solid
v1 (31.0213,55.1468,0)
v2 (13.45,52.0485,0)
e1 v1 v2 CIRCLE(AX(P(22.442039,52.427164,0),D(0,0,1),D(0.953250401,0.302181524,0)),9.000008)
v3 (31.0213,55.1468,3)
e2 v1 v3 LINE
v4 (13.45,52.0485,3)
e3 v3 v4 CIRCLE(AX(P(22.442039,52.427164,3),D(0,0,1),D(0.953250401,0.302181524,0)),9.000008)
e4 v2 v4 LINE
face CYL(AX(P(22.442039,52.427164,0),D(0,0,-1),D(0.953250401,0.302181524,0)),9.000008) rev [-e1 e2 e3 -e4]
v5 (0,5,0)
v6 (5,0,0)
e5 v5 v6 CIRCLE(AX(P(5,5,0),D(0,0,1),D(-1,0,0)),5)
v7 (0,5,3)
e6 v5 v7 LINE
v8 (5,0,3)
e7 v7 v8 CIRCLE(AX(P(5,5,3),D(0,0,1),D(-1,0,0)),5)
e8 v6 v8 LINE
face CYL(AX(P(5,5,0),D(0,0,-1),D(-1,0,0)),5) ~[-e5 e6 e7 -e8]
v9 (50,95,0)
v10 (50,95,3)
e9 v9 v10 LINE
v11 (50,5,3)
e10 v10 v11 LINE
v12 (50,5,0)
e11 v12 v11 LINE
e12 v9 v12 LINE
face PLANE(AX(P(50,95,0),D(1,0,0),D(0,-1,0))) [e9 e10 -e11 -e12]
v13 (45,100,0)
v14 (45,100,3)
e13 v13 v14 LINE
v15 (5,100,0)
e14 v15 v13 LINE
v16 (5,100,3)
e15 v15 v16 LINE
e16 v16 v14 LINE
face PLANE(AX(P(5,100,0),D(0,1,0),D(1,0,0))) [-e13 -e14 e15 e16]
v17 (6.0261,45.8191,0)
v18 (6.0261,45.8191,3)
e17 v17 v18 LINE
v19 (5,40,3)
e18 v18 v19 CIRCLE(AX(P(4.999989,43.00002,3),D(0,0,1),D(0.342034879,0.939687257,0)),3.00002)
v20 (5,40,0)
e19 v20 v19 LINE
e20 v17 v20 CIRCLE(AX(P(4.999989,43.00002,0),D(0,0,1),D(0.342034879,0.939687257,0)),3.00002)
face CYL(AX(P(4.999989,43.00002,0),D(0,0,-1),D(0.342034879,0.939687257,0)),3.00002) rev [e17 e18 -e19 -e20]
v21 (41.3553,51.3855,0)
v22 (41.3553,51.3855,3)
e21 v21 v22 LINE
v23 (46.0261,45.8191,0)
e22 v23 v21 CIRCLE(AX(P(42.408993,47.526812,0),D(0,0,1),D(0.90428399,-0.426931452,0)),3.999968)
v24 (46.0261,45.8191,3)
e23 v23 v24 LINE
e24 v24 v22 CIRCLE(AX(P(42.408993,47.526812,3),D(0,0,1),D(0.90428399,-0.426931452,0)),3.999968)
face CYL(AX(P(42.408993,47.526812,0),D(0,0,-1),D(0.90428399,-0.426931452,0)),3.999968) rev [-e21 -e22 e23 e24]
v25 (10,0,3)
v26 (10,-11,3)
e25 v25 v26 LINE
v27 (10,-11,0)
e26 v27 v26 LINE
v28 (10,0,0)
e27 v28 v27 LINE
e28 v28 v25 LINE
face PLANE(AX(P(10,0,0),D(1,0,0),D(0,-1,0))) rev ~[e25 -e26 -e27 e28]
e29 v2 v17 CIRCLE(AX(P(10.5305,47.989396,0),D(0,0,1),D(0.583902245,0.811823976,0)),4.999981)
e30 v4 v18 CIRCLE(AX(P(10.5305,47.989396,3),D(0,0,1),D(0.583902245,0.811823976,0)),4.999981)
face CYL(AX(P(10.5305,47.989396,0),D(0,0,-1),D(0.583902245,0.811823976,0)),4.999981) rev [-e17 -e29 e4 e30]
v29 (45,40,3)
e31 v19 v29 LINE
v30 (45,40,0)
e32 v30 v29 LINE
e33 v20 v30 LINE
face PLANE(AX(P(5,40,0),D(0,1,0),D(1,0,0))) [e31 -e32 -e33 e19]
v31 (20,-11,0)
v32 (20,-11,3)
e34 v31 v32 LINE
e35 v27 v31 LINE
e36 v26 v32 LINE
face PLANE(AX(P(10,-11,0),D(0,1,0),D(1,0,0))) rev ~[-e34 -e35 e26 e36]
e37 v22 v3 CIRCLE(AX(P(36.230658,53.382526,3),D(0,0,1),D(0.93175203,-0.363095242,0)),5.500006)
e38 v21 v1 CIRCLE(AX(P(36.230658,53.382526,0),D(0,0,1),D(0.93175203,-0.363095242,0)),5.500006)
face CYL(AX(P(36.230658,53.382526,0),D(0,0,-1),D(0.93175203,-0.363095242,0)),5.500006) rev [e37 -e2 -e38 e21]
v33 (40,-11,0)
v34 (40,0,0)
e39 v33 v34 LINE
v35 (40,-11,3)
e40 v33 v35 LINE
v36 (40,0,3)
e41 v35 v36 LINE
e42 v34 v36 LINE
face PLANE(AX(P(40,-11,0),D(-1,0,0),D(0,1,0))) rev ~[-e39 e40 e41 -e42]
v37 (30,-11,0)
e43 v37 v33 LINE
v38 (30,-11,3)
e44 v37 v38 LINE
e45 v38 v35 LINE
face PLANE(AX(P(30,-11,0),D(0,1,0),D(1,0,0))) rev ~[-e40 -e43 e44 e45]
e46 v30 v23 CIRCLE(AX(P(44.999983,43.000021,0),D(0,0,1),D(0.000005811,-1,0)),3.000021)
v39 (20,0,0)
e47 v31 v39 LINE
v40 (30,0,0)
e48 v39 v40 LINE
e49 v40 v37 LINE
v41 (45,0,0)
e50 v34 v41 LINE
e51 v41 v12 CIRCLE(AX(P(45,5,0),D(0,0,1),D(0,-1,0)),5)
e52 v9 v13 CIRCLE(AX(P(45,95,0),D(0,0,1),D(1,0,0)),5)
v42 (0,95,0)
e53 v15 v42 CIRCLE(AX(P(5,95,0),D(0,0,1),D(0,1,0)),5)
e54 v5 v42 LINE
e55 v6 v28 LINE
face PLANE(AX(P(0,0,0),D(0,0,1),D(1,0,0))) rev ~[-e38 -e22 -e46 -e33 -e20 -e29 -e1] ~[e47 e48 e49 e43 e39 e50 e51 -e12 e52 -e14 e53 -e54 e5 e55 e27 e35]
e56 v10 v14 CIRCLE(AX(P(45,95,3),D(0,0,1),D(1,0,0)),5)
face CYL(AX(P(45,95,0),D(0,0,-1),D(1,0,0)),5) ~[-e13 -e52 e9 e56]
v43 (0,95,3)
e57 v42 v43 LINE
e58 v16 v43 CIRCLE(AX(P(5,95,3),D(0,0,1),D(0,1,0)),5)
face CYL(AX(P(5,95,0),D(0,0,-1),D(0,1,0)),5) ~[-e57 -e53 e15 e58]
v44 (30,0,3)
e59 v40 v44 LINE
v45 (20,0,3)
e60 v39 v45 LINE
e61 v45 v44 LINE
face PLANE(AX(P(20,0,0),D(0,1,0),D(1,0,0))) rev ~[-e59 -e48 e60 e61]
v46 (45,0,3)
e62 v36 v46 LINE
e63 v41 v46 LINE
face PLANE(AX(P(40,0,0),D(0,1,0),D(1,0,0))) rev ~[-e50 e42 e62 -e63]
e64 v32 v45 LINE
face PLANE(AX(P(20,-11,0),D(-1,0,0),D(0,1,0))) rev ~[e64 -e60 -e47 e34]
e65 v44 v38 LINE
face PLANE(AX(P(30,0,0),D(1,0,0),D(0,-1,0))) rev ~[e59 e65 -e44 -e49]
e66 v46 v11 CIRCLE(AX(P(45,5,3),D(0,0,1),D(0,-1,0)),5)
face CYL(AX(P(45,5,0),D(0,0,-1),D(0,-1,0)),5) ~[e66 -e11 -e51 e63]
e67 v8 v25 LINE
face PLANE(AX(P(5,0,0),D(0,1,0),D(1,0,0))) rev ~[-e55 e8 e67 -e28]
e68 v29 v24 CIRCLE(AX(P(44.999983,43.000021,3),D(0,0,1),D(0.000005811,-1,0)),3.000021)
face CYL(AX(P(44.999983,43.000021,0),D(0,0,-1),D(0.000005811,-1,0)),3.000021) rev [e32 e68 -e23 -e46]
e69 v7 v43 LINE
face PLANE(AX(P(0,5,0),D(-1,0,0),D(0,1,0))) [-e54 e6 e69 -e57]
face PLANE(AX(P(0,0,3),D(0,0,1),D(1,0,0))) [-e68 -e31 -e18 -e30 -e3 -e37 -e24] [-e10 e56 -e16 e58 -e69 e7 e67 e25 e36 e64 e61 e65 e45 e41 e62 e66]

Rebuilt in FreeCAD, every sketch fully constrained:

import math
import FreeCAD as App
import Part
import Sketcher

V = App.Vector
Q = App.Units.Quantity

doc = App.newDocument("Part")
body = doc.addObject("PartDesign::Body", "Body")

sketch1 = body.newObject("Sketcher::SketchObject", "Sketch")
sketch1.AttachmentSupport = (doc.getObject("XY_Plane"), [""])
sketch1.MapMode = "FlatFace"
sketch1.addGeometry(Part.LineSegment(V(0, 95, 0), V(0, 5, 0)), False)
sketch1.addGeometry(Part.ArcOfCircle(Part.Circle(V(5, 5, 0), V(0, 0, 1), 5), math.radians(180), math.radians(270)), False)
sketch1.addGeometry(Part.LineSegment(V(5, 0, 0), V(10, 0, 0)), False)
sketch1.addGeometry(Part.LineSegment(V(10, 0, 0), V(10, -11, 0)), False)
sketch1.addGeometry(Part.LineSegment(V(10, -11, 0), V(20, -11, 0)), False)
sketch1.addGeometry(Part.LineSegment(V(20, -11, 0), V(20, 0, 0)), False)
sketch1.addGeometry(Part.LineSegment(V(20, 0, 0), V(30, 0, 0)), False)
sketch1.addGeometry(Part.LineSegment(V(30, 0, 0), V(30, -11, 0)), False)
sketch1.addGeometry(Part.LineSegment(V(30, -11, 0), V(40, -11, 0)), False)
sketch1.addGeometry(Part.LineSegment(V(40, -11, 0), V(40, 0, 0)), False)
sketch1.addGeometry(Part.LineSegment(V(40, 0, 0), V(45, 0, 0)), False)
sketch1.addGeometry(Part.ArcOfCircle(Part.Circle(V(45, 5, 0), V(0, 0, 1), 5), math.radians(-90), math.radians(0)), False)
sketch1.addGeometry(Part.LineSegment(V(50, 5, 0), V(50, 95, 0)), False)
sketch1.addGeometry(Part.ArcOfCircle(Part.Circle(V(45, 95, 0), V(0, 0, 1), 5), math.radians(0), math.radians(90)), False)
sketch1.addGeometry(Part.LineSegment(V(45, 100, 0), V(5, 100, 0)), False)
sketch1.addGeometry(Part.ArcOfCircle(Part.Circle(V(5, 95, 0), V(0, 0, 1), 5), math.radians(90), math.radians(180)), False)
sketch1.addGeometry(Part.LineSegment(V(45, 40, 0), V(5, 40, 0)), False)
sketch1.addGeometry(Part.ArcOfCircle(Part.Circle(V(5, 43, 0), V(0, 0, 1), 3), math.radians(70), math.radians(270)), False)
sketch1.addGeometry(Part.ArcOfCircle(Part.Circle(V(10.5, 48, 0), V(0, 0, 1), 5), math.radians(54), math.radians(206)), False)
sketch1.addGeometry(Part.ArcOfCircle(Part.Circle(V(22.4, 52.4, 0), V(0, 0, 1), 9), math.radians(18), math.radians(182)), False)
sketch1.addGeometry(Part.ArcOfCircle(Part.Circle(V(36.2, 53.4, 0), V(0, 0, 1), 5.5), math.radians(-21), math.radians(161)), False)
sketch1.addGeometry(Part.ArcOfCircle(Part.Circle(V(42.4, 47.5, 0), V(0, 0, 1), 4), math.radians(-25), math.radians(105)), False)
sketch1.addGeometry(Part.ArcOfCircle(Part.Circle(V(45, 43, 0), V(0, 0, 1), 3), math.radians(-90), math.radians(70)), False)
sketch1.addConstraint(Sketcher.Constraint("Tangent", 0, 2, 1, 1))
sketch1.addConstraint(Sketcher.Constraint("Tangent", 1, 2, 2, 1))
sketch1.addConstraint(Sketcher.Constraint("Coincident", 2, 2, 3, 1))
sketch1.addConstraint(Sketcher.Constraint("Coincident", 3, 2, 4, 1))
sketch1.addConstraint(Sketcher.Constraint("Coincident", 4, 2, 5, 1))
sketch1.addConstraint(Sketcher.Constraint("Coincident", 5, 2, 6, 1))
sketch1.addConstraint(Sketcher.Constraint("Coincident", 6, 2, 7, 1))
sketch1.addConstraint(Sketcher.Constraint("Coincident", 7, 2, 8, 1))
sketch1.addConstraint(Sketcher.Constraint("Coincident", 8, 2, 9, 1))
sketch1.addConstraint(Sketcher.Constraint("Coincident", 9, 2, 10, 1))
sketch1.addConstraint(Sketcher.Constraint("Tangent", 10, 2, 11, 1))
sketch1.addConstraint(Sketcher.Constraint("Tangent", 11, 2, 12, 1))
sketch1.addConstraint(Sketcher.Constraint("Tangent", 12, 2, 13, 1))
sketch1.addConstraint(Sketcher.Constraint("Tangent", 13, 2, 14, 1))
sketch1.addConstraint(Sketcher.Constraint("Tangent", 14, 2, 15, 1))
sketch1.addConstraint(Sketcher.Constraint("Tangent", 15, 2, 0, 1))
sketch1.addConstraint(Sketcher.Constraint("Tangent", 16, 2, 17, 2))
sketch1.addConstraint(Sketcher.Constraint("Coincident", 17, 1, 18, 2))
sketch1.addConstraint(Sketcher.Constraint("Coincident", 18, 1, 19, 2))
sketch1.addConstraint(Sketcher.Constraint("Coincident", 19, 1, 20, 2))
sketch1.addConstraint(Sketcher.Constraint("Coincident", 20, 1, 21, 2))
sketch1.addConstraint(Sketcher.Constraint("Coincident", 21, 1, 22, 2))
sketch1.addConstraint(Sketcher.Constraint("Tangent", 22, 1, 16, 1))
sketch1.addConstraint(Sketcher.Constraint("Vertical", 0))
sketch1.addConstraint(Sketcher.Constraint("Horizontal", 2))
sketch1.addConstraint(Sketcher.Constraint("Vertical", 3))
sketch1.addConstraint(Sketcher.Constraint("Horizontal", 4))
sketch1.addConstraint(Sketcher.Constraint("Vertical", 5))
sketch1.addConstraint(Sketcher.Constraint("Horizontal", 6))
sketch1.addConstraint(Sketcher.Constraint("Vertical", 7))
sketch1.addConstraint(Sketcher.Constraint("Horizontal", 8))
sketch1.addConstraint(Sketcher.Constraint("Vertical", 9))
sketch1.addConstraint(Sketcher.Constraint("Horizontal", 10))
sketch1.addConstraint(Sketcher.Constraint("Vertical", 12))
sketch1.addConstraint(Sketcher.Constraint("Horizontal", 14))
sketch1.addConstraint(Sketcher.Constraint("Horizontal", 16))
sketch1.addConstraint(Sketcher.Constraint("Equal", 1, 11))
sketch1.addConstraint(Sketcher.Constraint("Equal", 11, 13))
sketch1.addConstraint(Sketcher.Constraint("Equal", 13, 15))
sketch1.addConstraint(Sketcher.Constraint("Equal", 15, 18))
sketch1.addConstraint(Sketcher.Constraint("Equal", 17, 22))
sketch1.addConstraint(Sketcher.Constraint("PointOnObject", 0, 2, -2))
sketch1.addConstraint(Sketcher.Constraint("PointOnObject", 1, 2, -1))
sketch1.addConstraint(Sketcher.Constraint("PointOnObject", 5, 2, -1))
sketch1.addConstraint(Sketcher.Constraint("PointOnObject", 9, 2, -1))
sketch1.addConstraint(Sketcher.Constraint("Horizontal", 4, 2, 7, 2))
sketch1.addConstraint(Sketcher.Constraint("Horizontal", 17, 1, 21, 1))
sketch1.addConstraint(Sketcher.Constraint("Vertical", 15, 3, 17, 3))
sketch1.addConstraint(Sketcher.Constraint("Vertical", 13, 3, 22, 3))
sketch1.addConstraint(Sketcher.Constraint("Equal", 4, 6))
sketch1.addConstraint(Sketcher.Constraint("Equal", 6, 8))
sketch1.addConstraint(Sketcher.Constraint("Equal", 2, 10))
sketch1.addConstraint(Sketcher.Constraint("Radius", 1, Q("5 mm")))
sketch1.addConstraint(Sketcher.Constraint("Radius", 17, Q("3 mm")))
sketch1.addConstraint(Sketcher.Constraint("Radius", 19, Q("9 mm")))
sketch1.addConstraint(Sketcher.Constraint("Radius", 21, Q("4 mm")))
sketch1.addConstraint(Sketcher.Constraint("Radius", 20, Q("5.5 mm")))
sketch1.addConstraint(Sketcher.Constraint("DistanceX", 2, 1, 2, 2, Q("5 mm")))
sketch1.addConstraint(Sketcher.Constraint("DistanceX", 4, 1, 4, 2, Q("10 mm")))
sketch1.addConstraint(Sketcher.Constraint("DistanceY", 3, 2, 3, 1, Q("11 mm")))
sketch1.addConstraint(Sketcher.Constraint("DistanceY", -1, 1, 13, 2, Q("100 mm")))
sketch1.addConstraint(Sketcher.Constraint("DistanceY", -1, 1, 16, 2, Q("40 mm")))
sketch1.addConstraint(Sketcher.Constraint("DistanceX", 18, 3, 20, 3, Q("25.7 mm")))
sketch1.addConstraint(Sketcher.Constraint("DistanceY", 16, 2, 18, 1, Q("12.0485 mm")))
sketch1.addConstraint(Sketcher.Constraint("DistanceY", 22, 1, 20, 1, Q("11.3855 mm")))
sketch1.addConstraint(Sketcher.Constraint("DistanceX", -1, 1, 18, 1, Q("13.45 mm")))
sketch1.addConstraint(Sketcher.Constraint("DistanceY", 21, 3, 19, 1, Q("7.62 mm")))
sketch1.addConstraint(Sketcher.Constraint("DistanceX", -1, 1, 19, 3, Q("22.442 mm")))
sketch1.addConstraint(Sketcher.Constraint("DistanceX", -1, 1, 21, 3, Q("42.409 mm")))
pad1 = body.newObject("PartDesign::Pad", "Pad")
pad1.Profile = sketch1
pad1.Length = 3

doc.recompute()
